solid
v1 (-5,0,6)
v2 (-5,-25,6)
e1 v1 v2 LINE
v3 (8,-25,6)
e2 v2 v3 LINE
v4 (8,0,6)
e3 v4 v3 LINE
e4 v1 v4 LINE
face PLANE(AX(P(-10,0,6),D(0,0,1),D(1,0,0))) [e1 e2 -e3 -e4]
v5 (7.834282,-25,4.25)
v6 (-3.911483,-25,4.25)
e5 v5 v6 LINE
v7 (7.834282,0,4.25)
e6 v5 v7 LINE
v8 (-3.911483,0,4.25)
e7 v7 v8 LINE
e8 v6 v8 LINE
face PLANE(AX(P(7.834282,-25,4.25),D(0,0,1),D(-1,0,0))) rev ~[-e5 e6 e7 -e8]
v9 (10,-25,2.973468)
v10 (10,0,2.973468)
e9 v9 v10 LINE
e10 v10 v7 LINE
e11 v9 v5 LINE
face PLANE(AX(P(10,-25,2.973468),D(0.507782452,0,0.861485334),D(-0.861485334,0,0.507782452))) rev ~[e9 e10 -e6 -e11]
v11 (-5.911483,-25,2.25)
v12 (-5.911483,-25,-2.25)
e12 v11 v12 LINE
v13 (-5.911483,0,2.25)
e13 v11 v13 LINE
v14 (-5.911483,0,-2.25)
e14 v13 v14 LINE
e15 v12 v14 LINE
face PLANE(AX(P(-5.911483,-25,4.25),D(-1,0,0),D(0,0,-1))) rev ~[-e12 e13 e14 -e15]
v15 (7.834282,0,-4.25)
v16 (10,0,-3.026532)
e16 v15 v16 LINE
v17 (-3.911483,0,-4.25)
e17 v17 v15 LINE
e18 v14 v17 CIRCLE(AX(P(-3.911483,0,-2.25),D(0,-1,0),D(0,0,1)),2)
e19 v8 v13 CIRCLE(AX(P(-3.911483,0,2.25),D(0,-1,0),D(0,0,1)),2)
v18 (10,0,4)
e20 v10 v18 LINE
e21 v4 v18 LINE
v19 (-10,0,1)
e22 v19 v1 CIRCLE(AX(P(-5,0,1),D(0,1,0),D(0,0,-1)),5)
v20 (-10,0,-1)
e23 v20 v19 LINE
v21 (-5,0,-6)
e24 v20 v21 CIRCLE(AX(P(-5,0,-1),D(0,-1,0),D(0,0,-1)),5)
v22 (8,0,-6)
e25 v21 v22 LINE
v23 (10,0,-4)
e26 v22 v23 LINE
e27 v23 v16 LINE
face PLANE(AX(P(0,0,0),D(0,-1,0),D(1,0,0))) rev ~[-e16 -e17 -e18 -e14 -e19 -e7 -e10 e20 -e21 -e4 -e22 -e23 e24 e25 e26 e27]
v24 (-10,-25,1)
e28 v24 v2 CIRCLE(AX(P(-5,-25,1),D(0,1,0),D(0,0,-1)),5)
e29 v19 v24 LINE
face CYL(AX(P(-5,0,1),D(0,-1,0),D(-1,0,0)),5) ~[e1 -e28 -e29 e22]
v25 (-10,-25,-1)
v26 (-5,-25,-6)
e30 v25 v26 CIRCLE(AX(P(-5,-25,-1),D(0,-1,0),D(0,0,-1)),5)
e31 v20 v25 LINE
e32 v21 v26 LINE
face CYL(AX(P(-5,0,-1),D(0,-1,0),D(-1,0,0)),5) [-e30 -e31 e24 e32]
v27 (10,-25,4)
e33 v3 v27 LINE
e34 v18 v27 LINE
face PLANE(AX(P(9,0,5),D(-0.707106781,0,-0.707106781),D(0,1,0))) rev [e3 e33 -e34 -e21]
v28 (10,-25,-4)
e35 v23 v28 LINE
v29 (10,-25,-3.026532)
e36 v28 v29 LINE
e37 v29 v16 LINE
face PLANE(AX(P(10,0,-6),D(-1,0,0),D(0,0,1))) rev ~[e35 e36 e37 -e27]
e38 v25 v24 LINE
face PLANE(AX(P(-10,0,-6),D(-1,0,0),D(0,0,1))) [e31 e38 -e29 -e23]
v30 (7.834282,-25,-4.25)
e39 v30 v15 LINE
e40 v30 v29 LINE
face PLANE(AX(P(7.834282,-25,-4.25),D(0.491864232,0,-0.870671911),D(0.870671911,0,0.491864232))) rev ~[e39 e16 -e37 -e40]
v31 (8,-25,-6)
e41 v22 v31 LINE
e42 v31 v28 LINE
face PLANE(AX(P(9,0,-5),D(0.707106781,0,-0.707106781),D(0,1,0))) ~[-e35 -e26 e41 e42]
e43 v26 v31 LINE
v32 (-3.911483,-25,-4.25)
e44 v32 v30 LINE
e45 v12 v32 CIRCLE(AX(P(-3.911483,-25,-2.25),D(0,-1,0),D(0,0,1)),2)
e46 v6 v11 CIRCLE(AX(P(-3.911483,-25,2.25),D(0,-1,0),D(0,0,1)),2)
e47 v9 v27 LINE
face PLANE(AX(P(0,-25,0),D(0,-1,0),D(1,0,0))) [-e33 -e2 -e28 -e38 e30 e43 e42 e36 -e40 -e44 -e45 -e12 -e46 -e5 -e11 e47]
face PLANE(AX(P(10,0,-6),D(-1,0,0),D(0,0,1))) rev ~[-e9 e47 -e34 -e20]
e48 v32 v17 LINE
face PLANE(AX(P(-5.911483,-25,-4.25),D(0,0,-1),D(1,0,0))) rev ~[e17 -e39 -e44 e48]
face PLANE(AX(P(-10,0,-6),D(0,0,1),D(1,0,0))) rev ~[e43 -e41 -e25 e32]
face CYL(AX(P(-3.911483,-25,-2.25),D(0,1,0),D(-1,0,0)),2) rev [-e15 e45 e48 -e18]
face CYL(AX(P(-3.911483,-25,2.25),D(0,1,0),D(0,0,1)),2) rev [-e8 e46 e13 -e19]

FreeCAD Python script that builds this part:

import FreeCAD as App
import Part
import Sketcher


def edges_at(feature, points):
    """Names of the edges that pass closest to the given points."""
    edges = feature.Shape.Edges
    near = lambda p: min(range(len(edges)), key=lambda i: edges[i].distToShape(Part.Vertex(*p))[0])
    return sorted({f"Edge{near(p) + 1}" for p in points})


def add_polygon(sketch, points):
    """Adds a closed chain of lines whose ends are joined by coincident constraints."""
    first, n = sketch.GeometryCount, len(points)
    for a, b in zip(points, points[1:] + points[:1]):
        sketch.addGeometry(Part.LineSegment(App.Vector(*a, 0), App.Vector(*b, 0)), False)
    for i in range(n):
        sketch.addConstraint(Sketcher.Constraint("Coincident", first + i, 2, first + (i + 1) % n, 1))

doc = App.newDocument("Part")
body = doc.addObject("PartDesign::Body", "Body")

sketch1 = doc.addObject("Sketcher::SketchObject", "Sketch")
body.addObject(sketch1)
sketch1.AttachmentSupport = (doc.XZ_Plane, [""])
sketch1.MapMode = "FlatFace"
add_polygon(sketch1, [(-10, 6), (-10, -6), (10, -6), (10, 6)])
sketch1.addConstraint([
    Sketcher.Constraint("Vertical", 0),
    Sketcher.Constraint("Horizontal", 1),
    Sketcher.Constraint("Vertical", 2),
    Sketcher.Constraint("Horizontal", 3),
    Sketcher.Constraint("Symmetric", 0, 2, 2, 2, -1, 1),
    Sketcher.Constraint("DistanceX", 1, 1, 1, 2, 20.0),
    Sketcher.Constraint("DistanceY", 0, 2, 0, 1, 12.0),
])
pad1 = doc.addObject("PartDesign::Pad", "Pad")
body.addObject(pad1)
pad1.Profile = sketch1
pad1.Length = 25
doc.recompute()

fillet = doc.addObject("PartDesign::Fillet", "Fillet")
body.addObject(fillet)
fillet.Base = (pad1, edges_at(pad1, [(-10, -12.5, 6), (-10, -12.5, -6)]))
fillet.Radius = 5
doc.recompute()

chamfer = doc.addObject("PartDesign::Chamfer", "Chamfer")
body.addObject(chamfer)
chamfer.Base = (fillet, edges_at(fillet, [(10, -12.5, 6), (10, -12.5, -6)]))
chamfer.Size = 2

sketch2 = doc.addObject("Sketcher::SketchObject", "Sketch001")
body.addObject(sketch2)
sketch2.AttachmentSupport = (doc.XZ_Plane, [""])
sketch2.MapMode = "FlatFace"
sketch2.AttachmentOffset = App.Placement(App.Vector(0, 0, 25), App.Rotation())
add_polygon(sketch2, [(10, -3), (10, 3), (7.8, 4.2), (-5.9, 4.2), (-5.9, -4.2), (7.8, -4.2)])
sketch2.addConstraint([
    Sketcher.Constraint("Vertical", 0),
    Sketcher.Constraint("Horizontal", 2),
    Sketcher.Constraint("Vertical", 3),
    Sketcher.Constraint("Horizontal", 4),
    Sketcher.Constraint("Symmetric", 1, 2, 4, 2, -1),
    Sketcher.Constraint("DistanceY", 0, 1, 0, 2, 6.0),
    Sketcher.Constraint("DistanceY", 3, 2, 3, 1, 8.5),
    Sketcher.Constraint("DistanceX", -1, 1, 0, 2, 10.0),
    Sketcher.Constraint("Distance", 5, 2.48741),
    Sketcher.Constraint("DistanceX", 2, 2, 2, 1, 13.745765),
    Sketcher.Constraint("DistanceY", -1, 1, 0, 2, 2.973468),
])
pocket1 = doc.addObject("PartDesign::Pocket", "Pocket")
body.addObject(pocket1)
pocket1.Profile = sketch2
pocket1.Length = 25
doc.recompute()

fillet2 = doc.addObject("PartDesign::Fillet", "Fillet001")
body.addObject(fillet2)
fillet2.Base = (pocket1, edges_at(pocket1, [(-5.911, -12.5, -4.25), (-5.911, -12.5, 4.25)]))
fillet2.Radius = 2

doc.recompute()
